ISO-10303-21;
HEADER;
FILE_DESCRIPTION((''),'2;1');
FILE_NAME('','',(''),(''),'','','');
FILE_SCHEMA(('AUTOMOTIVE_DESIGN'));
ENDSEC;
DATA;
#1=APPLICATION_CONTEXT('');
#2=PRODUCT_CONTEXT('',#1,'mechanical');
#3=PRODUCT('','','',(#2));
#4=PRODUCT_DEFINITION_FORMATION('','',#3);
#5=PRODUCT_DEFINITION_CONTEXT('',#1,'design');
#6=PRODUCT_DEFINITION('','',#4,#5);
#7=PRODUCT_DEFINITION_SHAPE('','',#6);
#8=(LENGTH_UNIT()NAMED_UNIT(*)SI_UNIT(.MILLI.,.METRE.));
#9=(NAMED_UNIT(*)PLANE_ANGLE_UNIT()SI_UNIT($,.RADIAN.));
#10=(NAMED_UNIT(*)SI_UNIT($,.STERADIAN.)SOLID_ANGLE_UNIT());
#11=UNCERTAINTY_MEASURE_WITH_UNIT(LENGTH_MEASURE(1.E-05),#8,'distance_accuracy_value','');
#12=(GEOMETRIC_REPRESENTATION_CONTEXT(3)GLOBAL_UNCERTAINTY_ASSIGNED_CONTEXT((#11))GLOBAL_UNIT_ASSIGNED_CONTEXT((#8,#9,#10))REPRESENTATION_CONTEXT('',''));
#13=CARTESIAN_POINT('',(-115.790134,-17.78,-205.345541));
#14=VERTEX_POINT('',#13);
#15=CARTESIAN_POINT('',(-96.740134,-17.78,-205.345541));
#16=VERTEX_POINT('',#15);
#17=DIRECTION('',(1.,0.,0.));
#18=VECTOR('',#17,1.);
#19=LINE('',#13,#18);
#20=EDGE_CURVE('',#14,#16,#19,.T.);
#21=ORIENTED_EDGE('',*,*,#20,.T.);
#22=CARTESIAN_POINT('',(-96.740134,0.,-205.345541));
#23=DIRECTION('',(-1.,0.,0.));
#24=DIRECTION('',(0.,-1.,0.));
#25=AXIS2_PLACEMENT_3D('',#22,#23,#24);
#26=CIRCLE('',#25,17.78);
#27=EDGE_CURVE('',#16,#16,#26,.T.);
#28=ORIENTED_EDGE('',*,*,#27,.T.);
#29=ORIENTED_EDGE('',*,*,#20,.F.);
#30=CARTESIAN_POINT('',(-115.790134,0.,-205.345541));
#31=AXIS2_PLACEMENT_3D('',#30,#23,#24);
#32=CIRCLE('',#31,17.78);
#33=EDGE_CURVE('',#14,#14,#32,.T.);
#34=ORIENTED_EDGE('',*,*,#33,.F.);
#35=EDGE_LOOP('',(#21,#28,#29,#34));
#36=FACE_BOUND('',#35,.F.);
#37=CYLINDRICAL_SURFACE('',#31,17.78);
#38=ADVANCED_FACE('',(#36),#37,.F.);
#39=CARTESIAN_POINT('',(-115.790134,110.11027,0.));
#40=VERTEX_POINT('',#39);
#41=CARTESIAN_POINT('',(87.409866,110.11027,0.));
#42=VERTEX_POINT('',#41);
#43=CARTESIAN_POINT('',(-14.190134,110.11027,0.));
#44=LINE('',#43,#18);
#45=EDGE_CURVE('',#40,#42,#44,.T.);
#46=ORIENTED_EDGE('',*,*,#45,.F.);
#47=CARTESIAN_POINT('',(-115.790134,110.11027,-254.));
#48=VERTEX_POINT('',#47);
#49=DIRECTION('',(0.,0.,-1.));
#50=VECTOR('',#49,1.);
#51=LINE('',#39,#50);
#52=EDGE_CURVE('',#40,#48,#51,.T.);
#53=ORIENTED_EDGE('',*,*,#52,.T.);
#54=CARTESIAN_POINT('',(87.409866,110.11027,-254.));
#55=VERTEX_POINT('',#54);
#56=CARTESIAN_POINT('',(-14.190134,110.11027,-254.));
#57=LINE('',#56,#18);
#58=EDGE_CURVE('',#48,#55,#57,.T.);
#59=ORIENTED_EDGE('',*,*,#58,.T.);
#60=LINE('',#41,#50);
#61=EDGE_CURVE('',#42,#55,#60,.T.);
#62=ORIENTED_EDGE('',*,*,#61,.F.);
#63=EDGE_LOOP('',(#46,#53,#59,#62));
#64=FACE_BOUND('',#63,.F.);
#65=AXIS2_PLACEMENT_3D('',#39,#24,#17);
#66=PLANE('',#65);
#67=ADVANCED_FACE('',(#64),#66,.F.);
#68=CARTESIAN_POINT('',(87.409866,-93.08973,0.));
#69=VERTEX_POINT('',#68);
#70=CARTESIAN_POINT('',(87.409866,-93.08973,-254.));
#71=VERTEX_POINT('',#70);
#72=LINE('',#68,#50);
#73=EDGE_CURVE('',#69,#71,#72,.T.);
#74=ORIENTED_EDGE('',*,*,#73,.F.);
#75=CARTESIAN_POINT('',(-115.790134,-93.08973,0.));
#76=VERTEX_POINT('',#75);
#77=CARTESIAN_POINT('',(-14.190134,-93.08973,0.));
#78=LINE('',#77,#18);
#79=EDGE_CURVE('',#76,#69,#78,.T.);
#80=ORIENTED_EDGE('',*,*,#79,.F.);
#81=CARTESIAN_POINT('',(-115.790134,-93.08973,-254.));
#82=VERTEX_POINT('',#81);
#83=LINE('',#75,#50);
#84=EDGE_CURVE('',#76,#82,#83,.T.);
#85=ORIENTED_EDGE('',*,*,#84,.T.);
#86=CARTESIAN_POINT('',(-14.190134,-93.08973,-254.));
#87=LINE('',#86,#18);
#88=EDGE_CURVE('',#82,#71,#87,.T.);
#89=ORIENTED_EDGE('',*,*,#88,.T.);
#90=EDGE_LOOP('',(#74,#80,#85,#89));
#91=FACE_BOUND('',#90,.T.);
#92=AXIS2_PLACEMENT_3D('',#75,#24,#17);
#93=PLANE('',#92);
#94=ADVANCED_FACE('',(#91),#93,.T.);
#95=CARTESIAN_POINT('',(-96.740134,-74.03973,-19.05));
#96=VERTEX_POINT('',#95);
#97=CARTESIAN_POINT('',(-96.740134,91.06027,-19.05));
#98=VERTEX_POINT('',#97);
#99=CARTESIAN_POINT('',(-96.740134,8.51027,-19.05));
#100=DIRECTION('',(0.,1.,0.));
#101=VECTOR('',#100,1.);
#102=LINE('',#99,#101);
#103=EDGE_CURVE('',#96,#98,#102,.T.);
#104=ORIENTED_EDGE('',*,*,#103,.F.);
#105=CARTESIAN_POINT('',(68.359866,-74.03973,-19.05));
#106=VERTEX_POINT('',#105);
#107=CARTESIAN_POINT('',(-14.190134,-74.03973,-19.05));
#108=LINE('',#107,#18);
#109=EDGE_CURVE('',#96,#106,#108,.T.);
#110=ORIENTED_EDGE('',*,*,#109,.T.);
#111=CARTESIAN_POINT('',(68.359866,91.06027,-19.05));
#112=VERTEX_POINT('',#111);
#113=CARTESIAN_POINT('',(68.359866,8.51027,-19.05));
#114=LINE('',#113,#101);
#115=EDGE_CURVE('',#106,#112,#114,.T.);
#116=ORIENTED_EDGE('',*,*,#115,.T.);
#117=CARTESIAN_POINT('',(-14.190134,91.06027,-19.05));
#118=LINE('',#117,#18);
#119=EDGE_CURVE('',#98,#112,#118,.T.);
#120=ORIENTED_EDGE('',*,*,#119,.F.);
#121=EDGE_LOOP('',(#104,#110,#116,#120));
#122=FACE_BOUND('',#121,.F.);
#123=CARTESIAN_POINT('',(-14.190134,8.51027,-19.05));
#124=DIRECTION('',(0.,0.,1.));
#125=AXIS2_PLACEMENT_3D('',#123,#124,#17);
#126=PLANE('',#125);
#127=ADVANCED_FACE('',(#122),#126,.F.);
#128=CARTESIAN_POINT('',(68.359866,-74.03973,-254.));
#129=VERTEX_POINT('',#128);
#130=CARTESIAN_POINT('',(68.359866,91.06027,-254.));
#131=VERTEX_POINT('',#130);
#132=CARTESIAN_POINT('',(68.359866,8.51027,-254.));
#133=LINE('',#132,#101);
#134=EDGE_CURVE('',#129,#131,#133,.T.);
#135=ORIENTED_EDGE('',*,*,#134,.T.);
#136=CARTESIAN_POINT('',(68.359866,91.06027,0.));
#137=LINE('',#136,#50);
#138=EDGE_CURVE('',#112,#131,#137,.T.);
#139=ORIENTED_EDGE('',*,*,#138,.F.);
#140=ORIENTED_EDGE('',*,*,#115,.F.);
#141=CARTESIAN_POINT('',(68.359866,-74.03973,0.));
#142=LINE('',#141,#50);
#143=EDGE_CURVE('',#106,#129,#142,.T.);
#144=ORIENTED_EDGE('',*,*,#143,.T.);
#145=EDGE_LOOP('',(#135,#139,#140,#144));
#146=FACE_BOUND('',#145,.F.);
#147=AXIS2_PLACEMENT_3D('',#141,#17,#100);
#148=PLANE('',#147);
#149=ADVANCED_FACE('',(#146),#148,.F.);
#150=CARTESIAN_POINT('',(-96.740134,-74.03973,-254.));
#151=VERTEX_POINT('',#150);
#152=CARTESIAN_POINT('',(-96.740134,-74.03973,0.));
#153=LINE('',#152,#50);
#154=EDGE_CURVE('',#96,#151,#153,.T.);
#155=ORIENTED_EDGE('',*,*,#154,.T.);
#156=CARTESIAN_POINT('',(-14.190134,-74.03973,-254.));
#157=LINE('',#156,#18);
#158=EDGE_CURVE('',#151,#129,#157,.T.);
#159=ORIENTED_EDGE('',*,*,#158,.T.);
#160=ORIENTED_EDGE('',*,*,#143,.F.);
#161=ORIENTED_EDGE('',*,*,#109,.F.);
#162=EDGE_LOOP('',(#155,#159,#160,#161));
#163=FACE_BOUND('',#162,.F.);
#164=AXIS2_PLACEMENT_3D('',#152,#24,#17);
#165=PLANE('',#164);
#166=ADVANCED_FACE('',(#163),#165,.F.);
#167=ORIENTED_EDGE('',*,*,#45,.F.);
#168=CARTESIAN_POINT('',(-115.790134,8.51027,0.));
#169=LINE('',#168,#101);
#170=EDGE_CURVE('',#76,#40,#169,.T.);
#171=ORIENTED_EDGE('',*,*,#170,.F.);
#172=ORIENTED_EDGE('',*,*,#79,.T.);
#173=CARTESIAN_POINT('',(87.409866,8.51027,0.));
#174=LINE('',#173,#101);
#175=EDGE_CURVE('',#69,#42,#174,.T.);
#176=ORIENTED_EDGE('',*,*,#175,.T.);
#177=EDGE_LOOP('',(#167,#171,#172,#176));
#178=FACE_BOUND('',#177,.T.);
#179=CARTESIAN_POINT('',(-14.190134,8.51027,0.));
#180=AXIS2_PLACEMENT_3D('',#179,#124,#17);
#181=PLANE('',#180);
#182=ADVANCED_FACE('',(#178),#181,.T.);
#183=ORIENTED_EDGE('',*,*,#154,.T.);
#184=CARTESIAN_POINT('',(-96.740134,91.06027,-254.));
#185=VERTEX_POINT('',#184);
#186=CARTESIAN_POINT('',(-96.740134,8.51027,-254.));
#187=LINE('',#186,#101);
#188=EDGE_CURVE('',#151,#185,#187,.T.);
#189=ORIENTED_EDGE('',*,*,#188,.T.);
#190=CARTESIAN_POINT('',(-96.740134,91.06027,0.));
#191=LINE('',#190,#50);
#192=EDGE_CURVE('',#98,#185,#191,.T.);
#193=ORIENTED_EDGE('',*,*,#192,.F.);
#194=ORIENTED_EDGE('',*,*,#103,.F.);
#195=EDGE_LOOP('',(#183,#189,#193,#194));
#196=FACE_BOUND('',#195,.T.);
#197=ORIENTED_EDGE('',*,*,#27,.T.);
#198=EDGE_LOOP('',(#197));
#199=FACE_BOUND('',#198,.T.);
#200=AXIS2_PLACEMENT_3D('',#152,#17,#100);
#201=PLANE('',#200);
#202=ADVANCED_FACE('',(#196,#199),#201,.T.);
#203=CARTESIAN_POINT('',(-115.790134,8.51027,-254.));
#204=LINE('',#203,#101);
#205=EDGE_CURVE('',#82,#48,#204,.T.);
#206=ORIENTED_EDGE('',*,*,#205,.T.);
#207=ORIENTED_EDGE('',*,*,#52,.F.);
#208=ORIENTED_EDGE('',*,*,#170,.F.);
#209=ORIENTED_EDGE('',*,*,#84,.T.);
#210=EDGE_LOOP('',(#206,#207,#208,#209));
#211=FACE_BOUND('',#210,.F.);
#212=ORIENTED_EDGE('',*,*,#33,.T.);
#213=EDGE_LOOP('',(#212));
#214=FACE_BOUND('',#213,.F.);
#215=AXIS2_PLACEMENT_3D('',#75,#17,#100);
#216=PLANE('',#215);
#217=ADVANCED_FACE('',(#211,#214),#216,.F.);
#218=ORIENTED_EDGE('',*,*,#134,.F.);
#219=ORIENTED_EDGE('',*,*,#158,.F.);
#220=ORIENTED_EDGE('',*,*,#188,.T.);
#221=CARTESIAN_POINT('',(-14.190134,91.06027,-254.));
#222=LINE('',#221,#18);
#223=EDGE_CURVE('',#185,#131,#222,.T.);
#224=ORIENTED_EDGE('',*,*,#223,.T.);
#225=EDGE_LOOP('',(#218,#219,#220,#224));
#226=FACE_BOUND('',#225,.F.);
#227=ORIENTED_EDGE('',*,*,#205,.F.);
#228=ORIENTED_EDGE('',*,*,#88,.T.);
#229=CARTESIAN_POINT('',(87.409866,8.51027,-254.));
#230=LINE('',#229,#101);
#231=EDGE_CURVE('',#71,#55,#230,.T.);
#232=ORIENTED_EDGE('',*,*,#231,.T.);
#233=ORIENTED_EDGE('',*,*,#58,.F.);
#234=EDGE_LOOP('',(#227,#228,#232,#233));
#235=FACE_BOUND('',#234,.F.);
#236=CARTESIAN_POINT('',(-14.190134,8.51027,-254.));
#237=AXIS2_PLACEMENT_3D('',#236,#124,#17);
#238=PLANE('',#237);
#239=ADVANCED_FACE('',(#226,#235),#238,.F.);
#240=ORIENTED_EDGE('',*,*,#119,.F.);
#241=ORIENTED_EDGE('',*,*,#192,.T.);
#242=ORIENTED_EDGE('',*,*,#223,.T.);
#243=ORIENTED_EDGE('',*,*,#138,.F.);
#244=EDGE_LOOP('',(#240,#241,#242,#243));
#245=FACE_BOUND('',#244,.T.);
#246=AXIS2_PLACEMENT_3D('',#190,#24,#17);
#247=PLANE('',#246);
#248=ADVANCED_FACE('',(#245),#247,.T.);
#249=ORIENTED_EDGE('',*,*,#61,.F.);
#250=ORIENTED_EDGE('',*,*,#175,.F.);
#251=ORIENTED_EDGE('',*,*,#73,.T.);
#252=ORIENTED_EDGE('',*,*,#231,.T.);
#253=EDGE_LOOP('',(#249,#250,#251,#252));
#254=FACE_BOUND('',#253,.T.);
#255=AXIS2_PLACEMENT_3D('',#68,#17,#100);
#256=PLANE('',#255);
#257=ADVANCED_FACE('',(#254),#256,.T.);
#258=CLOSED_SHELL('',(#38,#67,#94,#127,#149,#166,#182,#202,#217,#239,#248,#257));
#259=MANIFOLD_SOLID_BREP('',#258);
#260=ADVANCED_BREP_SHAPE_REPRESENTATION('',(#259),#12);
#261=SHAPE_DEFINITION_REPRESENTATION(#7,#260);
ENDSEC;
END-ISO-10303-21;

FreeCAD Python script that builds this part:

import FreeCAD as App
import Part
import Sketcher

V = App.Vector
Q = App.Units.Quantity


def add_polygon(sketch, points):
    """Adds a closed chain of lines whose ends are joined by coincident constraints."""
    first, n = sketch.GeometryCount, len(points)
    for a, b in zip(points, points[1:] + points[:1]):
        sketch.addGeometry(Part.LineSegment(App.Vector(*a, 0), App.Vector(*b, 0)), False)
    for i in range(n):
        sketch.addConstraint(Sketcher.Constraint("Coincident", first + i, 2, first + (i + 1) % n, 1))

doc = App.newDocument("Part")
body = doc.addObject("PartDesign::Body", "Body")

sketch1 = doc.addObject("Sketcher::SketchObject", "Sketch")
body.addObject(sketch1)
sketch1.AttachmentSupport = (doc.XY_Plane, [""])
sketch1.MapMode = "FlatFace"
add_polygon(sketch1, [(-116, 110), (-116, -93), (87, -93), (87, 110)])
add_polygon(sketch1, [(68, -74), (-97, -74), (-97, 91), (68, 91)])
sketch1.addConstraint([
    Sketcher.Constraint("Vertical", 0),
    Sketcher.Constraint("Horizontal", 1),
    Sketcher.Constraint("Vertical", 2),
    Sketcher.Constraint("Horizontal", 3),
    Sketcher.Constraint("Horizontal", 4),
    Sketcher.Constraint("Vertical", 5),
    Sketcher.Constraint("Horizontal", 6),
    Sketcher.Constraint("Vertical", 7),
    Sketcher.Constraint("Equal", 3, 0),
    Sketcher.Constraint("Equal", 6, 5),
    Sketcher.Constraint("DistanceX", 1, 1, 1, 2, Q("8 in")),
    Sketcher.Constraint("DistanceX", 4, 2, 4, 1, Q("6.5 in")),
    Sketcher.Constraint("DistanceX", 0, 2, 4, 2, Q("0.75 in")),
    Sketcher.Constraint("DistanceY", 0, 2, 4, 2, Q("0.75 in")),
    Sketcher.Constraint("DistanceY", 0, 2, -1, 1, Q("93.08973 mm")),
    Sketcher.Constraint("DistanceX", 0, 2, -1, 1, Q("115.790134 mm")),
])
pad1 = doc.addObject("PartDesign::Pad", "Pad")
body.addObject(pad1)
pad1.Profile = sketch1
pad1.Length = Q("10 in")
pad1.Reversed = True

sketch2 = doc.addObject("Sketcher::SketchObject", "Sketch001")
body.addObject(sketch2)
sketch2.AttachmentSupport = (doc.XY_Plane, [""])
sketch2.MapMode = "FlatFace"
add_polygon(sketch2, [(-97, 91), (-97, -74), (68, -74), (68, 91)])
sketch2.addConstraint([
    Sketcher.Constraint("Vertical", 0),
    Sketcher.Constraint("Horizontal", 1),
    Sketcher.Constraint("Vertical", 2),
    Sketcher.Constraint("Horizontal", 3),
    Sketcher.Constraint("Equal", 3, 0),
    Sketcher.Constraint("DistanceX", 1, 1, 1, 2, Q("6.5 in")),
    Sketcher.Constraint("DistanceY", 0, 2, -1, 1, Q("74.03973 mm")),
    Sketcher.Constraint("DistanceX", 0, 2, -1, 1, Q("96.740134 mm")),
])
pad2 = doc.addObject("PartDesign::Pad", "Pad001")
body.addObject(pad2)
pad2.Profile = sketch2
pad2.Length = Q("0.75 in")
pad2.Reversed = True

sketch3 = doc.addObject("Sketcher::SketchObject", "Sketch002")
body.addObject(sketch3)
sketch3.AttachmentSupport = (doc.YZ_Plane, [""])
sketch3.MapMode = "FlatFace"
sketch3.AttachmentOffset = App.Placement(V(0, 0, -115.790134), App.Rotation())
sketch3.addGeometry(Part.Circle(V(0, -205, 0), V(0, 0, 1), 18), False)
sketch3.addConstraint([
    Sketcher.Constraint("PointOnObject", 0, 3, -2),
    Sketcher.Constraint("Diameter", 0, Q("1.4 in")),
    Sketcher.Constraint("DistanceY", 0, 3, -1, 1, Q("205.345541 mm")),
])
pocket1 = doc.addObject("PartDesign::Pocket", "Pocket")
body.addObject(pocket1)
pocket1.Profile = sketch3
pocket1.Length = Q("1 in")
pocket1.Reversed = True

doc.recompute()
